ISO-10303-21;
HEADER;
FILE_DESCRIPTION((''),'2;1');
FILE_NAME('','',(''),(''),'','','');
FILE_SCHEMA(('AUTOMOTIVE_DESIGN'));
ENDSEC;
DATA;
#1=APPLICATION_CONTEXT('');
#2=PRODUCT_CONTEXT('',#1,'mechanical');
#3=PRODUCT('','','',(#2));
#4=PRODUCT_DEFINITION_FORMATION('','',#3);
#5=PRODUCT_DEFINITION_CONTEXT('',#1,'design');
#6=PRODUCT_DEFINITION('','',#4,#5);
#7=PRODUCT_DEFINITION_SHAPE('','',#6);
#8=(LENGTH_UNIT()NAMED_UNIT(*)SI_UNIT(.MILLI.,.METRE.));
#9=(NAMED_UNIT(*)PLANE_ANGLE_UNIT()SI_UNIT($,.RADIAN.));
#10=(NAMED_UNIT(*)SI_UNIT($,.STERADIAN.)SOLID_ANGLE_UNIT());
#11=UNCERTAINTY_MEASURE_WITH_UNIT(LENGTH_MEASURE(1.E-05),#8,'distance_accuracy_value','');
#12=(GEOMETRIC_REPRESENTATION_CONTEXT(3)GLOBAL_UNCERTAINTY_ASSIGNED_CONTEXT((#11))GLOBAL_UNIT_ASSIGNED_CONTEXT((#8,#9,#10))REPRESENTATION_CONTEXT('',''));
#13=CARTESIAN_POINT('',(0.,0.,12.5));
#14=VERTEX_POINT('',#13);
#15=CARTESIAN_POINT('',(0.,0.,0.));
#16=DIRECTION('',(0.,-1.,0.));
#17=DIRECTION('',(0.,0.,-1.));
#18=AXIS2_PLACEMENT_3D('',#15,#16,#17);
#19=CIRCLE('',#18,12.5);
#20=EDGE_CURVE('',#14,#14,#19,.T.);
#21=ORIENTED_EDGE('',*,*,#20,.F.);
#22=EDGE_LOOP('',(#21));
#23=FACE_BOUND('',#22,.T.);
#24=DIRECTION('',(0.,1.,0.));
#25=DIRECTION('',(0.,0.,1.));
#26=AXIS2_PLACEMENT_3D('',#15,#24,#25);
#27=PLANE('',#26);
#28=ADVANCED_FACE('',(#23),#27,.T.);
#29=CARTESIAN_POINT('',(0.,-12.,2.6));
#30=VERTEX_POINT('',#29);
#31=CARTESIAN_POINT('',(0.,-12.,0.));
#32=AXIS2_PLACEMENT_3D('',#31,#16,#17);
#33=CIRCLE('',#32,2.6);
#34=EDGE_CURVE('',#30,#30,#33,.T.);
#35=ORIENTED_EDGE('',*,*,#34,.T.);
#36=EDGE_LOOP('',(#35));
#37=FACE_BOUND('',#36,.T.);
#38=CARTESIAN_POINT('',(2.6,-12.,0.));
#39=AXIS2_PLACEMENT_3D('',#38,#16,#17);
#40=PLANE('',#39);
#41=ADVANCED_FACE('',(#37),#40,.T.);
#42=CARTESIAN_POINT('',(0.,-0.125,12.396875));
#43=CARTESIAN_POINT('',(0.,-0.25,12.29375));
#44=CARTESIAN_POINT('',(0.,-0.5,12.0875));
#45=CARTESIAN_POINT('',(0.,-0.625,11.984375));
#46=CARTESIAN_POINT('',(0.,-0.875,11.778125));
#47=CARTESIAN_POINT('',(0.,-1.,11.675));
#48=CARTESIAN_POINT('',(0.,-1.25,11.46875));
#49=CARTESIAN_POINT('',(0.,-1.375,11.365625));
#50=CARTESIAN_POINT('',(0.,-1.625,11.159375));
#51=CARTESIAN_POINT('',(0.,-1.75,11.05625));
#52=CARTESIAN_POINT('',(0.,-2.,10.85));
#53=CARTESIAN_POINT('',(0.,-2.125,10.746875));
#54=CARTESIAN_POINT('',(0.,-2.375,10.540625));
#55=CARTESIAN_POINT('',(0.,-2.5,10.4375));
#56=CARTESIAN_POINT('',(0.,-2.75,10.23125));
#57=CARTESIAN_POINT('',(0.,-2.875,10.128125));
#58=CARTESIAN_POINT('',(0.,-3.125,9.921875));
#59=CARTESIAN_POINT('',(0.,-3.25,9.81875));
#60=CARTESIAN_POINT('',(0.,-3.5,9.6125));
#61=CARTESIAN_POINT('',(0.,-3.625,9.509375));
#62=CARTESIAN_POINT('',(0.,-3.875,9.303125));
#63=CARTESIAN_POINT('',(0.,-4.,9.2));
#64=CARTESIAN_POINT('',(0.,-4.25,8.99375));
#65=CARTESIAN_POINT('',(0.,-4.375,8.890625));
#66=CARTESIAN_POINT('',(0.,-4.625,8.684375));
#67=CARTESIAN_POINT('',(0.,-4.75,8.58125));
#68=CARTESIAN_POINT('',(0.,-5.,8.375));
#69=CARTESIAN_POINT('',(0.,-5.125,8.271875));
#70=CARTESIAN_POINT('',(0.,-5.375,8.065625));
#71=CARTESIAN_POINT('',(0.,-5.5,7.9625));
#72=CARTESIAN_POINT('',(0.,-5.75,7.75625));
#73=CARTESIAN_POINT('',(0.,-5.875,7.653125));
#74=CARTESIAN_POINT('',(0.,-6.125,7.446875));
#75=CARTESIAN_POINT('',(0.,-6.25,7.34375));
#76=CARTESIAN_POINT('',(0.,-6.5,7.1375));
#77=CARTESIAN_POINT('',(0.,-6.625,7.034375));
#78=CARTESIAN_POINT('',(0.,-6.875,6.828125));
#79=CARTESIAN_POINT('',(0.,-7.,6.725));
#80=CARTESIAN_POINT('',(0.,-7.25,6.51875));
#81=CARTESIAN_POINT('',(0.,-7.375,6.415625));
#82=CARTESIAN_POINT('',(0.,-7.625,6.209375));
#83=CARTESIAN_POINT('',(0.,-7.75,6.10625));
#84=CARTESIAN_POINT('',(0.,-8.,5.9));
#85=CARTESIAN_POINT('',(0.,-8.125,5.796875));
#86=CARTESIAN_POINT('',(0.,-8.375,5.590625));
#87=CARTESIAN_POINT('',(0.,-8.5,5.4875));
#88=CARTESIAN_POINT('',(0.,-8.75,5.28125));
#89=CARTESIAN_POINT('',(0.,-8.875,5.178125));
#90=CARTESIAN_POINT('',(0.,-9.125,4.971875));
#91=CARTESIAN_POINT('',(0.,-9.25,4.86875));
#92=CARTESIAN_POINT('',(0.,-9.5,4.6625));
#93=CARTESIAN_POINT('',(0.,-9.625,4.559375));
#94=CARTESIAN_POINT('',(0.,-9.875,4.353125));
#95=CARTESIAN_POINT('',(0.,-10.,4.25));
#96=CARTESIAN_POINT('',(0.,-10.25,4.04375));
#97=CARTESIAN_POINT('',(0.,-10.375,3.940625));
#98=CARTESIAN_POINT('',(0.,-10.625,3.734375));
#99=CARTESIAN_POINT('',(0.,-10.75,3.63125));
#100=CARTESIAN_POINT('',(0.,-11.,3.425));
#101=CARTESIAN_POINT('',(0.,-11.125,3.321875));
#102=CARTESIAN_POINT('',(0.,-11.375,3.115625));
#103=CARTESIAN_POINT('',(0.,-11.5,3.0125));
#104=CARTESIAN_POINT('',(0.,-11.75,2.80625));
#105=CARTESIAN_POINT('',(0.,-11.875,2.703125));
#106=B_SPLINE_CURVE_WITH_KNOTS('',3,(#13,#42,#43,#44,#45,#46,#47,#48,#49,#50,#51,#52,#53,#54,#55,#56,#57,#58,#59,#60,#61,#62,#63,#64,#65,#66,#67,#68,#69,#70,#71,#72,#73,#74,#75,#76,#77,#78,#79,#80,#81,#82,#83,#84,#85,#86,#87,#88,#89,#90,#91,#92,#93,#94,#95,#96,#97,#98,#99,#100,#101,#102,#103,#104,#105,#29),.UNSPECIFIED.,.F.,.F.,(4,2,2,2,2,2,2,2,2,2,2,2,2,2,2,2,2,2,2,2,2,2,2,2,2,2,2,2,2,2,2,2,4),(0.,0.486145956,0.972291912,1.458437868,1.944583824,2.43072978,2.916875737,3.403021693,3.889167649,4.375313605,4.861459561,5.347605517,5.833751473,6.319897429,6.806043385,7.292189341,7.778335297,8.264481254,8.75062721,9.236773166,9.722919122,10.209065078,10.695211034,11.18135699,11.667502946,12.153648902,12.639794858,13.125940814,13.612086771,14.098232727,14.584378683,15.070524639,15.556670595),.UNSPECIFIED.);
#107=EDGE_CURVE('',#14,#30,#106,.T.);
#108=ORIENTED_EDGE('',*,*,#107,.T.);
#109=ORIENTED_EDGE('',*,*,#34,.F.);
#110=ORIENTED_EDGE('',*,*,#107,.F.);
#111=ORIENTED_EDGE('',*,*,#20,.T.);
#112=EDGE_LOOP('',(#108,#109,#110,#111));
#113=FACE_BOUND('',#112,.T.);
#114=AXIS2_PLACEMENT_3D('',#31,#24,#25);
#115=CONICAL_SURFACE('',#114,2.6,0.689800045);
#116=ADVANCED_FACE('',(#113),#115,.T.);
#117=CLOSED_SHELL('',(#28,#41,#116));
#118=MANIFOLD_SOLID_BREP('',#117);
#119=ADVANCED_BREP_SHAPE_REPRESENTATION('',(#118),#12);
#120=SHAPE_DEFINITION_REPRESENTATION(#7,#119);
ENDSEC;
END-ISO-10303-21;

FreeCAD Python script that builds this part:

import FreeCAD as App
import Part
import Sketcher

V = App.Vector
Q = App.Units.Quantity

doc = App.newDocument("Part")
body = doc.addObject("PartDesign::Body", "Body")

sketch1 = doc.addObject("Sketcher::SketchObject", "Sketch")
body.addObject(sketch1)
sketch1.AttachmentSupport = (doc.XY_Plane, [""])
sketch1.MapMode = "FlatFace"
sketch1.addGeometry([
    Part.LineSegment(V(12.5, 0, 0), V(0, 0, 0)),
    Part.LineSegment(V(0, 0, 0), V(0, -12, 0)),
    Part.LineSegment(V(0, -12, 0), V(2.6, -12, 0)),
    Part.LineSegment(V(2.6, -12, 0), V(12.5, 0, 0)),
], False)
sketch1.addConstraint([
    Sketcher.Constraint("Coincident", 0, 2, 1, 1),
    Sketcher.Constraint("Coincident", 1, 2, 2, 1),
    Sketcher.Constraint("Coincident", 2, 2, 3, 1),
    Sketcher.Constraint("Coincident", 3, 2, 0, 1),
    Sketcher.Constraint("Horizontal", 0),
    Sketcher.Constraint("Vertical", 1),
    Sketcher.Constraint("Horizontal", 2),
    Sketcher.Constraint("Coincident", 0, 2, -1, 1),
    Sketcher.Constraint("DistanceY", 1, 2, 1, 1, Q("12 mm")),
    Sketcher.Constraint("DistanceX", 0, 2, 0, 1, Q("12.5 mm")),
    Sketcher.Constraint("DistanceX", 2, 1, 2, 2, Q("2.6 mm")),
])
revolution = doc.addObject("PartDesign::Revolution", "Revolution")
body.addObject(revolution)
revolution.Profile = sketch1
revolution.ReferenceAxis = (sketch1, ["V_Axis"])
revolution.Angle = 360

doc.recompute()
